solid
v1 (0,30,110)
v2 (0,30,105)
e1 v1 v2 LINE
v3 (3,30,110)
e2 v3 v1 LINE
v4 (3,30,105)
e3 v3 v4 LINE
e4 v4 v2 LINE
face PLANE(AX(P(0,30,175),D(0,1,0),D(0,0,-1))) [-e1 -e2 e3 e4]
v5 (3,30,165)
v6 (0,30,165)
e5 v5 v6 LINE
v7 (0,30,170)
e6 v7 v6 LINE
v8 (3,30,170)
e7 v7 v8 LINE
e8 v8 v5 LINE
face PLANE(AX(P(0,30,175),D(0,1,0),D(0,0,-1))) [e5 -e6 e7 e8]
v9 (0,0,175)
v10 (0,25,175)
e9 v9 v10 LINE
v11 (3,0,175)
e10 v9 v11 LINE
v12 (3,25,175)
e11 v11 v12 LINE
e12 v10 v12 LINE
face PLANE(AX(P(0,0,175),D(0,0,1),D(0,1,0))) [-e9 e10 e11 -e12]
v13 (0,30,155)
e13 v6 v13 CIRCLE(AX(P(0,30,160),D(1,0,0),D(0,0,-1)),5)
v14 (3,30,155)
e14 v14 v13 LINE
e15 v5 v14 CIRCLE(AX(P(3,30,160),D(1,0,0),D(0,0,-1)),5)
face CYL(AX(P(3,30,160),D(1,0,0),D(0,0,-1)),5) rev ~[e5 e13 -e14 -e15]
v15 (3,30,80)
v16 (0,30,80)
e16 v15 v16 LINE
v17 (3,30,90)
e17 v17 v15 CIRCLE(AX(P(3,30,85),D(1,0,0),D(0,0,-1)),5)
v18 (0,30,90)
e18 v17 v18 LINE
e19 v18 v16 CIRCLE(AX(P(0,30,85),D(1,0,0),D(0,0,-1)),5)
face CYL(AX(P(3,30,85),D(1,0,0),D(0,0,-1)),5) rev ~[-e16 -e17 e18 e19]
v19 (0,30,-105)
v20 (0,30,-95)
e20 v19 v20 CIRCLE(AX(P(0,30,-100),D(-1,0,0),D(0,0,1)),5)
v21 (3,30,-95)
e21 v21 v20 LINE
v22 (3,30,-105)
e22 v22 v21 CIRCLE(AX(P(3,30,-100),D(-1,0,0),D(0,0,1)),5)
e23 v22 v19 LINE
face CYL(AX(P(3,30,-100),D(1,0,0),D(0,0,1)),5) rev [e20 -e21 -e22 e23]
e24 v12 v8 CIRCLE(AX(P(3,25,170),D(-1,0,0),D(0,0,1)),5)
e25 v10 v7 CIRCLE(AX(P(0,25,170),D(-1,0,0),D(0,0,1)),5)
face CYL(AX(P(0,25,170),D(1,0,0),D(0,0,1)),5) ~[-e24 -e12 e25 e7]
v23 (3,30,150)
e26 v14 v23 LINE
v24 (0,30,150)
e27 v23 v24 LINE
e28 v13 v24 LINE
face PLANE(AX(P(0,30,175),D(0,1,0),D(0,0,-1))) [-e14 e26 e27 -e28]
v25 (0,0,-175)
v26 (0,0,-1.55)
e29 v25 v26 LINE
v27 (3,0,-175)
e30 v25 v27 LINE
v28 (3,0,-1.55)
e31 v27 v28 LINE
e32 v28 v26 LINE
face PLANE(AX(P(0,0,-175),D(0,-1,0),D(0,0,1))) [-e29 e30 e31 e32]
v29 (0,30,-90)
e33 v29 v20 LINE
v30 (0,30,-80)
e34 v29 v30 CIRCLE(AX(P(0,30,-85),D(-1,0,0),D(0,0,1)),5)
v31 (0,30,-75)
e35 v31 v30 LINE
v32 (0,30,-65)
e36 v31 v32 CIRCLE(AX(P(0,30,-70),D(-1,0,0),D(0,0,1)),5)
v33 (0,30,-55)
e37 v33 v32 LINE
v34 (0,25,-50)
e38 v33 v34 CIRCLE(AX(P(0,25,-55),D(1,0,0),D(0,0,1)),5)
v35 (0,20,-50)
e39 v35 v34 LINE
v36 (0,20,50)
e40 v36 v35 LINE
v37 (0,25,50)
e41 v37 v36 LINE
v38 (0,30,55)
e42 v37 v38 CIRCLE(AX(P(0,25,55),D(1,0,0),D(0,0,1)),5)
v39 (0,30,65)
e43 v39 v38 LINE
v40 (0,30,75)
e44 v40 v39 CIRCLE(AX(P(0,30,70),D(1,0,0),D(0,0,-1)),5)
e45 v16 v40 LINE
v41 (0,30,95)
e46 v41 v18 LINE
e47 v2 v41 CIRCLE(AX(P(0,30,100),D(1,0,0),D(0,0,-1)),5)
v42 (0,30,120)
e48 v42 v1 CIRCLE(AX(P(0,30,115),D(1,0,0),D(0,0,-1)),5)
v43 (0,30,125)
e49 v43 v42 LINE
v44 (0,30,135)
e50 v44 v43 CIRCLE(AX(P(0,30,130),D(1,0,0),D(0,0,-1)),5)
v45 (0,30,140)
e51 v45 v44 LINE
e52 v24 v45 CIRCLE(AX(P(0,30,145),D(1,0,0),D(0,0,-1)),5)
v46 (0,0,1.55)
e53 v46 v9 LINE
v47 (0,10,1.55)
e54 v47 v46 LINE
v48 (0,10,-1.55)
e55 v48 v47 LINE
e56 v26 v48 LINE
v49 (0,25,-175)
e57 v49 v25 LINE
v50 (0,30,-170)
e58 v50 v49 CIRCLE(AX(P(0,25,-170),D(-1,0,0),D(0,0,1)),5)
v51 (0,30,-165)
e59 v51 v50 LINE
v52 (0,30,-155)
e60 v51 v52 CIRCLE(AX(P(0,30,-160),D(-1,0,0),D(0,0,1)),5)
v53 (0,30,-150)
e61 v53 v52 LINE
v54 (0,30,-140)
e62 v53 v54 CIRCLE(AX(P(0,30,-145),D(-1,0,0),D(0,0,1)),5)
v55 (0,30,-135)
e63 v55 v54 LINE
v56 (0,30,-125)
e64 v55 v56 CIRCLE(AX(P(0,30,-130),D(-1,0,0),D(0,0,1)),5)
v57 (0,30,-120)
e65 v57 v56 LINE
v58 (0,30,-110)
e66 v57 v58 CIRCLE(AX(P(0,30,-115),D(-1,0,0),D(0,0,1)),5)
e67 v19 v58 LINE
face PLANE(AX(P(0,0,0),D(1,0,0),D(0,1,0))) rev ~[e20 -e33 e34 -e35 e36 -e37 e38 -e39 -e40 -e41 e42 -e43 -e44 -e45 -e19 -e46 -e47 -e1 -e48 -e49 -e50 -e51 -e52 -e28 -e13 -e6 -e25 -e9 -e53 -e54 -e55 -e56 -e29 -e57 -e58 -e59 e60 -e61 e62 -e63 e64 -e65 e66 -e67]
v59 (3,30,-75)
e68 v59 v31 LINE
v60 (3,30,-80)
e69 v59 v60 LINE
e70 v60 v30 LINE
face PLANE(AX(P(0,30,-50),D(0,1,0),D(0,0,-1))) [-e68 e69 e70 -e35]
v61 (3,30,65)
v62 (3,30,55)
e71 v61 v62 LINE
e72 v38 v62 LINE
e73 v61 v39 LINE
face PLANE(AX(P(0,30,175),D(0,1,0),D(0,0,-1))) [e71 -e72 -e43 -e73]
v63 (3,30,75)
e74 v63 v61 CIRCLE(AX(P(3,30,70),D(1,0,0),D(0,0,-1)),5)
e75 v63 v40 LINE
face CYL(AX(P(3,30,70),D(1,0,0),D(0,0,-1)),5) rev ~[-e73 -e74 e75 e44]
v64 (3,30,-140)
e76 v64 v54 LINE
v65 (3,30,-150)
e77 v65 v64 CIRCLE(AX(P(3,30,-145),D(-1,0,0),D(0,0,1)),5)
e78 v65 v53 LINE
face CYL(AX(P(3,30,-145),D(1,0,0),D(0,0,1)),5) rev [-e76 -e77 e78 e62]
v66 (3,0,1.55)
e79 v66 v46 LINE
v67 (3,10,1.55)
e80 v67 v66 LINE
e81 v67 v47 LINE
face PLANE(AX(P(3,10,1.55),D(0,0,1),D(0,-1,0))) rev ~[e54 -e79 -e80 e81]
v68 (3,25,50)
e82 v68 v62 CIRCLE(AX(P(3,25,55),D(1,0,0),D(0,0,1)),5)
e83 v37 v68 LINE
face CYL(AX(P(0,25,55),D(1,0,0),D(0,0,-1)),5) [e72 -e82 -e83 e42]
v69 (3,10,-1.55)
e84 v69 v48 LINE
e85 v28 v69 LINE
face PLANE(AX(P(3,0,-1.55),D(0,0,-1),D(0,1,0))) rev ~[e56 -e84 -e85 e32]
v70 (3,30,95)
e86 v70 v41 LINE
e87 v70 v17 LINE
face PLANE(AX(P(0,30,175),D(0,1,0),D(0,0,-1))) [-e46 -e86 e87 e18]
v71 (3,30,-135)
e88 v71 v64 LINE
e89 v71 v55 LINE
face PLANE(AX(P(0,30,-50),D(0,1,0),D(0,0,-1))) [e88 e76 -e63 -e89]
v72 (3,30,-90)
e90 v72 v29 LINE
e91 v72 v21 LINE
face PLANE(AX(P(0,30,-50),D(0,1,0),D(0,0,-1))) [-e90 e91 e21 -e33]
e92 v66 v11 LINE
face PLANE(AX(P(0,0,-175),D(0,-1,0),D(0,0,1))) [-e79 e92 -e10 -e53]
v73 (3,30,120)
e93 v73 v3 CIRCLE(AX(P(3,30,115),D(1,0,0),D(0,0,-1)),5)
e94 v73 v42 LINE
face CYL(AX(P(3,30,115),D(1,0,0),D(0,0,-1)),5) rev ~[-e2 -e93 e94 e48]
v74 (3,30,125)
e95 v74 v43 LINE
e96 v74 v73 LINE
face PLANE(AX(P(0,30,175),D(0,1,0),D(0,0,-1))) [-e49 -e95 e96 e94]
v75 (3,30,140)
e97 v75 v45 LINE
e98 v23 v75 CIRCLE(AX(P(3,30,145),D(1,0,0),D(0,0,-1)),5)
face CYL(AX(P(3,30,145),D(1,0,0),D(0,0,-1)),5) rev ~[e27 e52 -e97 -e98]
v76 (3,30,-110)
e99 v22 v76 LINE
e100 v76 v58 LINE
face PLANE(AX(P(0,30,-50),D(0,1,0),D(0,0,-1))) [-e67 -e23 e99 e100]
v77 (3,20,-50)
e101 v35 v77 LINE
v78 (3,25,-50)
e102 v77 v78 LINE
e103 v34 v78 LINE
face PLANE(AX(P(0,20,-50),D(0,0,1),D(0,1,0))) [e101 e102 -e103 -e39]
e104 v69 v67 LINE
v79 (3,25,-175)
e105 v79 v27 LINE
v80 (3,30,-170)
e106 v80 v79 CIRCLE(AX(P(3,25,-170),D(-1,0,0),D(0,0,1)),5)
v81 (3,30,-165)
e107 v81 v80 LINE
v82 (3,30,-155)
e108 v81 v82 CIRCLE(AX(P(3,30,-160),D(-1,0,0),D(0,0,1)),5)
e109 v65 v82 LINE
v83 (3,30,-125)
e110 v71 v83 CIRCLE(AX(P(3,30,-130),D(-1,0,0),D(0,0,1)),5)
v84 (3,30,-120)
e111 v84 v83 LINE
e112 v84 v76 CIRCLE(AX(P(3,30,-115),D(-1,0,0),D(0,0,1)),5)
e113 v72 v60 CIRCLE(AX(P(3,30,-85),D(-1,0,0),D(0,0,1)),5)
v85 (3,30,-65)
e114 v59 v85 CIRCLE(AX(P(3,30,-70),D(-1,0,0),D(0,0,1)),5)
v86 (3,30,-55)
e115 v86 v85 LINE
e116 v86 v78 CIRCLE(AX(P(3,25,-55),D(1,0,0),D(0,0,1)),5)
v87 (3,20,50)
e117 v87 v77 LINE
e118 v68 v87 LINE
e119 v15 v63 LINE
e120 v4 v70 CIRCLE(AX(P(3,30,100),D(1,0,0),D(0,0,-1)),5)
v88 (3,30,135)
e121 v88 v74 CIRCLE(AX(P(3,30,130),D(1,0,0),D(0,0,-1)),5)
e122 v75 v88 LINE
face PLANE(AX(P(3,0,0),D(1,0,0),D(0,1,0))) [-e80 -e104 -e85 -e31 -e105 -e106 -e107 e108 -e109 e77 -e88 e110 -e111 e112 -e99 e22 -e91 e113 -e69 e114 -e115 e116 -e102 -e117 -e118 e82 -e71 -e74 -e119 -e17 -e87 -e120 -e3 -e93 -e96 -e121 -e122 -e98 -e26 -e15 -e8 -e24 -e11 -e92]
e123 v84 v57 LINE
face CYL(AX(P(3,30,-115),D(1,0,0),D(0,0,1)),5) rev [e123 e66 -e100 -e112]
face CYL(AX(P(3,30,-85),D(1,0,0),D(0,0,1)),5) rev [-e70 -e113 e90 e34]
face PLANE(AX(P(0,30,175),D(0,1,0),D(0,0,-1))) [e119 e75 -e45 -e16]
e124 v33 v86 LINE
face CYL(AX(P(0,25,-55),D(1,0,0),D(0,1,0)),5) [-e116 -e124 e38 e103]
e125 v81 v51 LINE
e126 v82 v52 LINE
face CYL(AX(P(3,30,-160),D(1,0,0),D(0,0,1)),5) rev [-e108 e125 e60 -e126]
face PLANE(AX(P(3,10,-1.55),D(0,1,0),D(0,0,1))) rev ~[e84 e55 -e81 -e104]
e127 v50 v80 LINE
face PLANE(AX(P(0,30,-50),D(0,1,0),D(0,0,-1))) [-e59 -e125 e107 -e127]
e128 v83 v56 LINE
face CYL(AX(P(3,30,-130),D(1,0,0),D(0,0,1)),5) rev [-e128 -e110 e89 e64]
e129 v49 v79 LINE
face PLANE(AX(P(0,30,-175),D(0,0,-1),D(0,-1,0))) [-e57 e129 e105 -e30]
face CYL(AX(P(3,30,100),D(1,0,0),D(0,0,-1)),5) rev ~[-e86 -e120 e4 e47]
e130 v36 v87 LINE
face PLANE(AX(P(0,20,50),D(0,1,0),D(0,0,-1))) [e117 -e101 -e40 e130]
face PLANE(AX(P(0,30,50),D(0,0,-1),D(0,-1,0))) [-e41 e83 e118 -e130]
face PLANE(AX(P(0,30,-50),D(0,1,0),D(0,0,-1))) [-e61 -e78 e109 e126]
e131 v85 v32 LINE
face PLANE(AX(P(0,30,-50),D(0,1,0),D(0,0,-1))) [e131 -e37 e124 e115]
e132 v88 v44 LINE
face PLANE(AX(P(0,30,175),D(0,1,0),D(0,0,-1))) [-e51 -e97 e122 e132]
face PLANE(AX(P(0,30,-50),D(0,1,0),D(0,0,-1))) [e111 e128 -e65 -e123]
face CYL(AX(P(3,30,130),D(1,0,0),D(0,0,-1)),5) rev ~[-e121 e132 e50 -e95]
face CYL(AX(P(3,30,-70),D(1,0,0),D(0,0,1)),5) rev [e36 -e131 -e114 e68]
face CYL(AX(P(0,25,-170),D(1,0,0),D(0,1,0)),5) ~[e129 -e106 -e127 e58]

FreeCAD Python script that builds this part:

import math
import FreeCAD as App
import Part
import Sketcher

V = App.Vector
Q = App.Units.Quantity


def edges_at(feature, points):
    """Names of the edges that pass closest to the given points."""
    edges = feature.Shape.Edges
    near = lambda p: min(range(len(edges)), key=lambda i: edges[i].distToShape(Part.Vertex(*p))[0])
    return sorted({f"Edge{near(p) + 1}" for p in points})


def add_polygon(sketch, points):
    """Adds a closed chain of lines whose ends are joined by coincident constraints."""
    first, n = sketch.GeometryCount, len(points)
    for a, b in zip(points, points[1:] + points[:1]):
        sketch.addGeometry(Part.LineSegment(App.Vector(*a, 0), App.Vector(*b, 0)), False)
    for i in range(n):
        sketch.addConstraint(Sketcher.Constraint("Coincident", first + i, 2, first + (i + 1) % n, 1))

doc = App.newDocument("Part")
body = doc.addObject("PartDesign::Body", "Body")

sketch1 = body.newObject("Sketcher::SketchObject", "Sketch")
sketch1.AttachmentSupport = (doc.getObject("YZ_Plane"), [""])
sketch1.MapMode = "FlatFace"
add_polygon(sketch1, [(30, 175), (0, 175), (0, -175), (30, -175), (30, -50), (20, -50), (20, 50), (30, 50)])
sketch1.addConstraint(Sketcher.Constraint("Horizontal", 0))
sketch1.addConstraint(Sketcher.Constraint("Vertical", 1))
sketch1.addConstraint(Sketcher.Constraint("Horizontal", 2))
sketch1.addConstraint(Sketcher.Constraint("Vertical", 3))
sketch1.addConstraint(Sketcher.Constraint("Horizontal", 4))
sketch1.addConstraint(Sketcher.Constraint("Vertical", 5))
sketch1.addConstraint(Sketcher.Constraint("Horizontal", 6))
sketch1.addConstraint(Sketcher.Constraint("Vertical", 7))
sketch1.addConstraint(Sketcher.Constraint("Symmetric", 0, 2, 1, 2, -1, 1))
sketch1.addConstraint(Sketcher.Constraint("Symmetric", 3, 2, 6, 2, -1))
sketch1.addConstraint(Sketcher.Constraint("DistanceX", 0, 2, 0, 1, Q("30 mm")))
sketch1.addConstraint(Sketcher.Constraint("DistanceX", 4, 2, 4, 1, Q("10 mm")))
sketch1.addConstraint(Sketcher.Constraint("DistanceY", 1, 2, 1, 1, Q("350 mm")))
sketch1.addConstraint(Sketcher.Constraint("DistanceY", 5, 1, 5, 2, Q("100 mm")))
pad1 = body.newObject("PartDesign::Pad", "Pad")
pad1.Profile = sketch1
pad1.Length = 3

sketch2 = body.newObject("Sketcher::SketchObject", "Sketch001")
sketch2.AttachmentSupport = (doc.getObject("YZ_Plane"), [""])
sketch2.MapMode = "FlatFace"
sketch2.AttachmentOffset = App.Placement(V(0, 0, 3), App.Rotation())
add_polygon(sketch2, [(0, 1.6), (0, -1.6), (10, -1.6), (10, 1.6)])
sketch2.addConstraint(Sketcher.Constraint("Vertical", 0))
sketch2.addConstraint(Sketcher.Constraint("Horizontal", 1))
sketch2.addConstraint(Sketcher.Constraint("Vertical", 2))
sketch2.addConstraint(Sketcher.Constraint("Horizontal", 3))
sketch2.addConstraint(Sketcher.Constraint("Symmetric", 0, 2, 3, 2, -1, 1))
sketch2.addConstraint(Sketcher.Constraint("DistanceY", 0, 2, 0, 1, Q("3.1 mm")))
sketch2.addConstraint(Sketcher.Constraint("DistanceX", 1, 1, 1, 2, Q("10 mm")))
pocket1 = body.newObject("PartDesign::Pocket", "Pocket")
pocket1.Profile = sketch2
pocket1.Length = 3

sketch3 = body.newObject("Sketcher::SketchObject", "Sketch002")
sketch3.AttachmentSupport = (doc.getObject("YZ_Plane"), [""])
sketch3.MapMode = "FlatFace"
sketch3.AttachmentOffset = App.Placement(V(0, 0, 3), App.Rotation())
sketch3.addGeometry(Part.ArcOfCircle(Part.Circle(V(30, 70, 0), V(0, 0, 1), 5), math.radians(90), math.radians(270)), False)
sketch3.addGeometry(Part.LineSegment(V(30, 65, 0), V(30, 75, 0)), False)
sketch3.addGeometry(Part.ArcOfCircle(Part.Circle(V(30, 160, 0), V(0, 0, 1), 5), math.radians(90), math.radians(270)), False)
sketch3.addGeometry(Part.LineSegment(V(30, 155, 0), V(30, 165, 0)), False)
sketch3.addGeometry(Part.ArcOfCircle(Part.Circle(V(30, 145, 0), V(0, 0, 1), 5), math.radians(90), math.radians(270)), False)
sketch3.addGeometry(Part.LineSegment(V(30, 140, 0), V(30, 150, 0)), False)
sketch3.addGeometry(Part.ArcOfCircle(Part.Circle(V(30, 130, 0), V(0, 0, 1), 5), math.radians(90), math.radians(270)), False)
sketch3.addGeometry(Part.LineSegment(V(30, 125, 0), V(30, 135, 0)), False)
sketch3.addGeometry(Part.ArcOfCircle(Part.Circle(V(30, 115, 0), V(0, 0, 1), 5), math.radians(90), math.radians(270)), False)
sketch3.addGeometry(Part.LineSegment(V(30, 110, 0), V(30, 120, 0)), False)
sketch3.addGeometry(Part.ArcOfCircle(Part.Circle(V(30, 100, 0), V(0, 0, 1), 5), math.radians(90), math.radians(270)), False)
sketch3.addGeometry(Part.LineSegment(V(30, 95, 0), V(30, 105, 0)), False)
sketch3.addGeometry(Part.ArcOfCircle(Part.Circle(V(30, 85, 0), V(0, 0, 1), 5), math.radians(90), math.radians(270)), False)
sketch3.addGeometry(Part.LineSegment(V(30, 80, 0), V(30, 90, 0)), False)
sketch3.addConstraint(Sketcher.Constraint("Coincident", 0, 1, 1, 2))
sketch3.addConstraint(Sketcher.Constraint("Coincident", 1, 1, 0, 2))
sketch3.addConstraint(Sketcher.Constraint("Coincident", 2, 1, 3, 2))
sketch3.addConstraint(Sketcher.Constraint("Coincident", 3, 1, 2, 2))
sketch3.addConstraint(Sketcher.Constraint("Coincident", 4, 1, 5, 2))
sketch3.addConstraint(Sketcher.Constraint("Coincident", 5, 1, 4, 2))
sketch3.addConstraint(Sketcher.Constraint("Coincident", 6, 1, 7, 2))
sketch3.addConstraint(Sketcher.Constraint("Coincident", 7, 1, 6, 2))
sketch3.addConstraint(Sketcher.Constraint("Coincident", 8, 1, 9, 2))
sketch3.addConstraint(Sketcher.Constraint("Coincident", 9, 1, 8, 2))
sketch3.addConstraint(Sketcher.Constraint("Coincident", 10, 1, 11, 2))
sketch3.addConstraint(Sketcher.Constraint("Coincident", 11, 1, 10, 2))
sketch3.addConstraint(Sketcher.Constraint("Coincident", 12, 1, 13, 2))
sketch3.addConstraint(Sketcher.Constraint("Coincident", 13, 1, 12, 2))
sketch3.addConstraint(Sketcher.Constraint("Vertical", 1))
sketch3.addConstraint(Sketcher.Constraint("Vertical", 3))
sketch3.addConstraint(Sketcher.Constraint("Vertical", 5))
sketch3.addConstraint(Sketcher.Constraint("Vertical", 7))
sketch3.addConstraint(Sketcher.Constraint("Vertical", 9))
sketch3.addConstraint(Sketcher.Constraint("Vertical", 11))
sketch3.addConstraint(Sketcher.Constraint("Vertical", 13))
sketch3.addConstraint(Sketcher.Constraint("Equal", 0, 2))
sketch3.addConstraint(Sketcher.Constraint("Equal", 2, 4))
sketch3.addConstraint(Sketcher.Constraint("Equal", 4, 6))
sketch3.addConstraint(Sketcher.Constraint("Equal", 6, 8))
sketch3.addConstraint(Sketcher.Constraint("Equal", 8, 10))
sketch3.addConstraint(Sketcher.Constraint("Equal", 10, 12))
sketch3.addConstraint(Sketcher.Constraint("Vertical", 0, 3, 2, 3))
sketch3.addConstraint(Sketcher.Constraint("Vertical", 2, 3, 4, 3))
sketch3.addConstraint(Sketcher.Constraint("Vertical", 4, 3, 6, 3))
sketch3.addConstraint(Sketcher.Constraint("Vertical", 6, 3, 8, 3))
sketch3.addConstraint(Sketcher.Constraint("Vertical", 8, 3, 10, 3))
sketch3.addConstraint(Sketcher.Constraint("Vertical", 10, 3, 12, 3))
sketch3.addConstraint(Sketcher.Constraint("Vertical", 12, 3, 0, 1))
sketch3.addConstraint(Sketcher.Constraint("Vertical", 1, 1, 2, 1))
sketch3.addConstraint(Sketcher.Constraint("Vertical", 3, 1, 4, 1))
sketch3.addConstraint(Sketcher.Constraint("Vertical", 5, 1, 6, 1))
sketch3.addConstraint(Sketcher.Constraint("Vertical", 7, 1, 8, 1))
sketch3.addConstraint(Sketcher.Constraint("Vertical", 9, 1, 10, 1))
sketch3.addConstraint(Sketcher.Constraint("Vertical", 11, 1, 12, 1))
sketch3.addConstraint(Sketcher.Constraint("Radius", 0, Q("5 mm")))
sketch3.addConstraint(Sketcher.Constraint("DistanceY", 4, 3, 2, 3, Q("15 mm")))
sketch3.addConstraint(Sketcher.Constraint("DistanceY", 6, 3, 4, 3, Q("15 mm")))
sketch3.addConstraint(Sketcher.Constraint("DistanceY", 8, 3, 6, 3, Q("15 mm")))
sketch3.addConstraint(Sketcher.Constraint("DistanceY", 10, 3, 8, 3, Q("15 mm")))
sketch3.addConstraint(Sketcher.Constraint("DistanceY", 0, 3, 12, 3, Q("15 mm")))
sketch3.addConstraint(Sketcher.Constraint("DistanceY", 12, 3, 10, 3, Q("15 mm")))
sketch3.addConstraint(Sketcher.Constraint("DistanceX", -1, 1, 0, 3, Q("30 mm")))
sketch3.addConstraint(Sketcher.Constraint("DistanceY", -1, 1, 0, 3, Q("70 mm")))
pocket2 = body.newObject("PartDesign::Pocket", "Pocket001")
pocket2.Profile = sketch3
pocket2.Length = 3
doc.recompute()

fillet = body.newObject("PartDesign::Fillet", "Fillet")
fillet.Base = (pocket2, edges_at(pocket2, [(1.5, 30, 175)]))
fillet.Radius = 5
doc.recompute()

fillet2 = body.newObject("PartDesign::Fillet", "Fillet001")
fillet2.Base = (fillet, edges_at(fillet, [(1.5, 30, 50)]))
fillet2.Radius = 5
doc.recompute()

mirrored = body.newObject("PartDesign::Mirrored", "Mirrored")
mirrored.Originals = [pocket2, fillet, fillet2]
mirrored.MirrorPlane = (doc.getObject("XY_Plane"), [""])
body.Tip = mirrored

doc.recompute()
